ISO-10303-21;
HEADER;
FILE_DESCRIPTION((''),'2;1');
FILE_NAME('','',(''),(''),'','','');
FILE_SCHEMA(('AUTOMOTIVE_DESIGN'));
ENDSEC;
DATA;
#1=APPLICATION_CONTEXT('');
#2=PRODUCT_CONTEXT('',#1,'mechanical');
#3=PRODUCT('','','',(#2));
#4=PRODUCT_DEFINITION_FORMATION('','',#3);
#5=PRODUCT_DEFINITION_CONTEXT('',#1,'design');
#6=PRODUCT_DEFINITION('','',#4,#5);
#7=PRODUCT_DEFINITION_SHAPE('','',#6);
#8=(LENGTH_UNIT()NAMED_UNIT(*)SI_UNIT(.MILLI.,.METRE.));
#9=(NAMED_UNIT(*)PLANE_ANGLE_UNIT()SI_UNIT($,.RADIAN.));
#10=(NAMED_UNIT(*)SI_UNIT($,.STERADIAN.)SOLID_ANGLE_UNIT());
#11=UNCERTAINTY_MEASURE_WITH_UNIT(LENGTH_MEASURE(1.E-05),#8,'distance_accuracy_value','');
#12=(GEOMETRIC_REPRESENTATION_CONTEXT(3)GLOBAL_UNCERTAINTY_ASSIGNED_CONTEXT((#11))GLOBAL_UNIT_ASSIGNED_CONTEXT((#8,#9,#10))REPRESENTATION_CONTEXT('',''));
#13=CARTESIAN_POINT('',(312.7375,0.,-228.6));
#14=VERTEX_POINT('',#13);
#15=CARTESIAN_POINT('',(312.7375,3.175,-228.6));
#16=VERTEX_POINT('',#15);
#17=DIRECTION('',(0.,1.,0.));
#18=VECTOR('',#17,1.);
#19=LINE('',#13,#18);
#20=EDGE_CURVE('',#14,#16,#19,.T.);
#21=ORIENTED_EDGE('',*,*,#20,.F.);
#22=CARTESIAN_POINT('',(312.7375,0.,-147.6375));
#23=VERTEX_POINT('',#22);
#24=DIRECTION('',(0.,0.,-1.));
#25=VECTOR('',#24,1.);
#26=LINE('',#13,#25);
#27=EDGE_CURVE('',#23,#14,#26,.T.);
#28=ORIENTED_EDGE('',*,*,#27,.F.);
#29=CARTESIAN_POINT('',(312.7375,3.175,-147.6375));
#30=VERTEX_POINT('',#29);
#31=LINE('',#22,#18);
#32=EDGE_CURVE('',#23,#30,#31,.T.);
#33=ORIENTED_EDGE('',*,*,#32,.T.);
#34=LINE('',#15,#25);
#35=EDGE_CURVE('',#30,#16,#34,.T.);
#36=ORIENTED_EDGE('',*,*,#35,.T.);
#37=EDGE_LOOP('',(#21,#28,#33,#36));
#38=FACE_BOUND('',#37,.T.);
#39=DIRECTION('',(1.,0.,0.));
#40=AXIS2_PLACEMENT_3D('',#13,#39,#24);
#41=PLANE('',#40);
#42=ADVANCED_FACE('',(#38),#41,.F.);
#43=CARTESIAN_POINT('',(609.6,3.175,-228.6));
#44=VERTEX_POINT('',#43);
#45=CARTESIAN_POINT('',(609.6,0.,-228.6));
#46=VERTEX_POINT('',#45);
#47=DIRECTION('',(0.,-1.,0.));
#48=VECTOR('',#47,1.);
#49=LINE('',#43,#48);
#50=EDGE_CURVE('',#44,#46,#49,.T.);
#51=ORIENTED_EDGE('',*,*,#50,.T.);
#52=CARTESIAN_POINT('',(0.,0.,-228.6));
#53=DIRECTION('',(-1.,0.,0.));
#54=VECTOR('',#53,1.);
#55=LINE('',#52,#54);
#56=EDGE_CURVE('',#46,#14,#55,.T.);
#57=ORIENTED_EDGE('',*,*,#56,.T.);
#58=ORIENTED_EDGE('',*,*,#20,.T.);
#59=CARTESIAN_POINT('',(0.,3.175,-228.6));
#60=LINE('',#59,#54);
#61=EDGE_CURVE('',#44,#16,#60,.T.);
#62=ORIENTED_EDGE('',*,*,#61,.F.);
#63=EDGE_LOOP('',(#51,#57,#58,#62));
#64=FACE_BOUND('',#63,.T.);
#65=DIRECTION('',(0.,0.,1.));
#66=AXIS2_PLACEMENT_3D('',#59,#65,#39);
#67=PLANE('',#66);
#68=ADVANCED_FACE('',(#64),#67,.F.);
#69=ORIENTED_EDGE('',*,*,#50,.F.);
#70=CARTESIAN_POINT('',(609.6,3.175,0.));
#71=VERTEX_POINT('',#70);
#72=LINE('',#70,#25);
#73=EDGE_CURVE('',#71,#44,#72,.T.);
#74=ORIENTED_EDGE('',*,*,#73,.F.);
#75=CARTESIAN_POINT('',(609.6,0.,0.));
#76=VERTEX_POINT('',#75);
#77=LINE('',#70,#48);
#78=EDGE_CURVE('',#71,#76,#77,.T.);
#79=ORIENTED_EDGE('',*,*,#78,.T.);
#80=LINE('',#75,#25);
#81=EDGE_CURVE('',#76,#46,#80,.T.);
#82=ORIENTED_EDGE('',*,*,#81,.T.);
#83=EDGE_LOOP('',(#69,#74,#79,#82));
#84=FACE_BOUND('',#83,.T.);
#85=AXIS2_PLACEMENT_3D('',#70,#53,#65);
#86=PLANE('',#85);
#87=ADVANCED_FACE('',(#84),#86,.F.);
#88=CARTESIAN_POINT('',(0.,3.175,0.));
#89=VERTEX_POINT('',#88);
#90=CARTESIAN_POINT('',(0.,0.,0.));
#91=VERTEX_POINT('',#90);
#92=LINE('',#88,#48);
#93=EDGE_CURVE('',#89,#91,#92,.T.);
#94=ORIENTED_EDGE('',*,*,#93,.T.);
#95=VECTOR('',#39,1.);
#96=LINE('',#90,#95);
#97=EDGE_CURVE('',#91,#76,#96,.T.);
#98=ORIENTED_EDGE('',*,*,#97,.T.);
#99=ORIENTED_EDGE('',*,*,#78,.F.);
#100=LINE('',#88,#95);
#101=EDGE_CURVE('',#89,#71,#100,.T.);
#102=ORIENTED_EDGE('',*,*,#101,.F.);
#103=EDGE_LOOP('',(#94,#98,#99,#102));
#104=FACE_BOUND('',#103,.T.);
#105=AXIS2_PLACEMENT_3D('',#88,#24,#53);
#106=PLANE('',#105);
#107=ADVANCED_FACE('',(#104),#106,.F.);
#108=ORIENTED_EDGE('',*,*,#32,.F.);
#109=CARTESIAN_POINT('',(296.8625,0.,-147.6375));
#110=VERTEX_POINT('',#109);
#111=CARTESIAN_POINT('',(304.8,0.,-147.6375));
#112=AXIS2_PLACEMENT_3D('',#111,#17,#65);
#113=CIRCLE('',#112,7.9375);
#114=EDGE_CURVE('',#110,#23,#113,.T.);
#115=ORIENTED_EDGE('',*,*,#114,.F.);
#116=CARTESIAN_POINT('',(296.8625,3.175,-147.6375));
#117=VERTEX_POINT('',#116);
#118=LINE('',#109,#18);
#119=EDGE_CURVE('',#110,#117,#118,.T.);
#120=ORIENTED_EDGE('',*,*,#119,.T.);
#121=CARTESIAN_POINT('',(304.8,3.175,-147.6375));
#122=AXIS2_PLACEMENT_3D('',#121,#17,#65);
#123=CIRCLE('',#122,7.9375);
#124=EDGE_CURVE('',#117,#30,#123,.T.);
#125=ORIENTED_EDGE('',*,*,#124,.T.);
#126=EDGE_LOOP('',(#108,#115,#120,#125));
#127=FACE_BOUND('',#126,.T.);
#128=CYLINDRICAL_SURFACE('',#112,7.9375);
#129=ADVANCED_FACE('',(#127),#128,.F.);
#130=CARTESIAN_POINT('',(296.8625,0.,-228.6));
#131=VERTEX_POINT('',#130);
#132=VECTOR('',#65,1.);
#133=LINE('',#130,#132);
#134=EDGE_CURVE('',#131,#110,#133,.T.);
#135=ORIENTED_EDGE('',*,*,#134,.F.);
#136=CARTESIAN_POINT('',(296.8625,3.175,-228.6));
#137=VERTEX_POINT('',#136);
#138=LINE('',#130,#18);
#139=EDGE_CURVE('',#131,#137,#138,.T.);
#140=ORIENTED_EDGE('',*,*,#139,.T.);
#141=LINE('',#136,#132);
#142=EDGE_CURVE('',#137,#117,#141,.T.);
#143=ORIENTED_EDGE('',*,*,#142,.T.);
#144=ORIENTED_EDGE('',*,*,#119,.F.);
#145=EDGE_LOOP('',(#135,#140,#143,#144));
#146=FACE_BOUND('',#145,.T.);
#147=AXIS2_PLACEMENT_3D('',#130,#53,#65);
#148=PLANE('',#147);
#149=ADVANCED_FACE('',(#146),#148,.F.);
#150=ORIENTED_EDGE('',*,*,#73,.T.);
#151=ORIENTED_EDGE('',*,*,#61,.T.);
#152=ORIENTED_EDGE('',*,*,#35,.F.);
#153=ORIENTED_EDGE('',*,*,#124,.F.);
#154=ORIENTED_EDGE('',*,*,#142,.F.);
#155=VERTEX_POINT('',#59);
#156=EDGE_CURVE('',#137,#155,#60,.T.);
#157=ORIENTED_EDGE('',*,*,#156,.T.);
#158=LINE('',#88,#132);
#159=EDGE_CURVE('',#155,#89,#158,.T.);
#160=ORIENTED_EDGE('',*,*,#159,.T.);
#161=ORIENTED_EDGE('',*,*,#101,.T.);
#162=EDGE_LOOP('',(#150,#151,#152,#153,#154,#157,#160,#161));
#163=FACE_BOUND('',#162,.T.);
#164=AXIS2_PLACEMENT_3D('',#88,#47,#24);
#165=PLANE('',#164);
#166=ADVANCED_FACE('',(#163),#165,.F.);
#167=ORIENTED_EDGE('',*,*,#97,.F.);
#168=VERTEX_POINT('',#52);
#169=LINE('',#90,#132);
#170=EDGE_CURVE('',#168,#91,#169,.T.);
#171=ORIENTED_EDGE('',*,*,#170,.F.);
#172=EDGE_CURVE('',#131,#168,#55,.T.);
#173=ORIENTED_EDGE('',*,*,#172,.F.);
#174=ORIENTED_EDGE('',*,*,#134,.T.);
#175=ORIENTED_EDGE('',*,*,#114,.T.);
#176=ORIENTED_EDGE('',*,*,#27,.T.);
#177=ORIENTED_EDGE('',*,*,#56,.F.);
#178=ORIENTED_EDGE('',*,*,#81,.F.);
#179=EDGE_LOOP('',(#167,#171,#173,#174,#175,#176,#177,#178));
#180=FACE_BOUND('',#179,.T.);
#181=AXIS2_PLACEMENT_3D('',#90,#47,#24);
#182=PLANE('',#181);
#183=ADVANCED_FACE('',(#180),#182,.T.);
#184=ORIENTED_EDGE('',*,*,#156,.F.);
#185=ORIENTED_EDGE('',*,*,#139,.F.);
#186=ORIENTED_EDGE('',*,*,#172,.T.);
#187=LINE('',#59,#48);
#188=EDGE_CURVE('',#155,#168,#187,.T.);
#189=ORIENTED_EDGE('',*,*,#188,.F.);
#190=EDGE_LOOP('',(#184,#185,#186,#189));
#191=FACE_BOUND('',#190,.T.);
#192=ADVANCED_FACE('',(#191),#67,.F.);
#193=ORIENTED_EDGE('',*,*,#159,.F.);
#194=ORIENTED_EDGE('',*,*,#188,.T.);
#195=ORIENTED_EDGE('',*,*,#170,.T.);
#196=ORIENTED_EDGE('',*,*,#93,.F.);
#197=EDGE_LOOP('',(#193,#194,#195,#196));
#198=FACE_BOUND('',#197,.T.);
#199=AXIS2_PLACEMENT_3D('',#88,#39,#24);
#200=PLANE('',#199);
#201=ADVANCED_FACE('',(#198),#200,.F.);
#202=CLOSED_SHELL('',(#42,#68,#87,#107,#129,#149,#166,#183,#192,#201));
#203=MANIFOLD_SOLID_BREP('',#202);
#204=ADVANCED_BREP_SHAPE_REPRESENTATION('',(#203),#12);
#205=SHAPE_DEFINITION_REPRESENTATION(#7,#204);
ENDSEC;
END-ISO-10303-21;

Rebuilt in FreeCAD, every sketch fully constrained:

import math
import FreeCAD as App
import Part
import Sketcher
from FreeCAD import Vector
Q = App.Units.Quantity

doc = App.newDocument("Part")
body = doc.addObject("PartDesign::Body", "Body")

# Sketch on XZ plane
sketch1 = doc.addObject("Sketcher::SketchObject", "Sketch")
body.addObject(sketch1)
sketch1.AttachmentSupport = (doc.XZ_Plane, [""])
sketch1.MapMode = "FlatFace"
sketch1.addGeometry([
    Part.LineSegment(Vector(0, -229, 0), Vector(0, 0, 0)),
    Part.LineSegment(Vector(0, 0, 0), Vector(610, 0, 0)),
    Part.LineSegment(Vector(610, 0, 0), Vector(610, -229, 0)),
    Part.LineSegment(Vector(610, -229, 0), Vector(0, -229, 0)),
], False)
sketch1.addConstraint([
    Sketcher.Constraint("Coincident", 0, 2, 1, 1),
    Sketcher.Constraint("Coincident", 1, 2, 2, 1),
    Sketcher.Constraint("Coincident", 2, 2, 3, 1),
    Sketcher.Constraint("Coincident", 3, 2, 0, 1),
    Sketcher.Constraint("Vertical", 0),
    Sketcher.Constraint("Horizontal", 1),
    Sketcher.Constraint("Vertical", 2),
    Sketcher.Constraint("Horizontal", 3),
    Sketcher.Constraint("Coincident", 0, 2, -1, 1),
    Sketcher.Constraint("DistanceX", 1, 1, 1, 2, Q("24 in")),
    Sketcher.Constraint("DistanceY", 0, 1, 0, 2, Q("9 in")),
])
pad1 = doc.addObject("PartDesign::Pad", "Pad")
body.addObject(pad1)
pad1.Profile = sketch1
pad1.Length = Q("0.125 in")
pad1.Reversed = True

# Sketch on XZ plane
sketch2 = doc.addObject("Sketcher::SketchObject", "Sketch001")
body.addObject(sketch2)
sketch2.AttachmentSupport = (doc.XZ_Plane, [""])
sketch2.MapMode = "FlatFace"
sketch2.AttachmentOffset = App.Placement(Vector(0, 0, -0.125 * 25.4), App.Rotation())
sketch2.addGeometry([
    Part.LineSegment(Vector(313, -229, 0), Vector(297, -229, 0)),
    Part.LineSegment(Vector(297, -229, 0), Vector(297, -148, 0)),
    Part.ArcOfCircle(Part.Circle(Vector(305, -148, 0), Vector(0, 0, 1), 8), math.radians(0), math.radians(180)),
    Part.LineSegment(Vector(313, -148, 0), Vector(313, -229, 0)),
], False)
sketch2.addConstraint([
    Sketcher.Constraint("Coincident", 0, 2, 1, 1),
    Sketcher.Constraint("Tangent", 1, 2, 2, 2),
    Sketcher.Constraint("Tangent", 2, 1, 3, 1),
    Sketcher.Constraint("Coincident", 3, 2, 0, 1),
    Sketcher.Constraint("Horizontal", 0),
    Sketcher.Constraint("Vertical", 1),
    Sketcher.Constraint("Vertical", 3),
    Sketcher.Constraint("DistanceX", -1, 1, 2, 3, Q("12 in")),
    Sketcher.Constraint("DistanceY", 0, 2, -1, 1, Q("9 in")),
    Sketcher.Constraint("Radius", 2, Q("0.3125 in")),
    Sketcher.Constraint("DistanceY", 1, 1, 1, 2, Q("3.1875 in")),
])
pocket1 = doc.addObject("PartDesign::Pocket", "Pocket")
body.addObject(pocket1)
pocket1.Profile = sketch2
pocket1.Type = "ThroughAll"
pocket1.Reversed = True

doc.recompute()
